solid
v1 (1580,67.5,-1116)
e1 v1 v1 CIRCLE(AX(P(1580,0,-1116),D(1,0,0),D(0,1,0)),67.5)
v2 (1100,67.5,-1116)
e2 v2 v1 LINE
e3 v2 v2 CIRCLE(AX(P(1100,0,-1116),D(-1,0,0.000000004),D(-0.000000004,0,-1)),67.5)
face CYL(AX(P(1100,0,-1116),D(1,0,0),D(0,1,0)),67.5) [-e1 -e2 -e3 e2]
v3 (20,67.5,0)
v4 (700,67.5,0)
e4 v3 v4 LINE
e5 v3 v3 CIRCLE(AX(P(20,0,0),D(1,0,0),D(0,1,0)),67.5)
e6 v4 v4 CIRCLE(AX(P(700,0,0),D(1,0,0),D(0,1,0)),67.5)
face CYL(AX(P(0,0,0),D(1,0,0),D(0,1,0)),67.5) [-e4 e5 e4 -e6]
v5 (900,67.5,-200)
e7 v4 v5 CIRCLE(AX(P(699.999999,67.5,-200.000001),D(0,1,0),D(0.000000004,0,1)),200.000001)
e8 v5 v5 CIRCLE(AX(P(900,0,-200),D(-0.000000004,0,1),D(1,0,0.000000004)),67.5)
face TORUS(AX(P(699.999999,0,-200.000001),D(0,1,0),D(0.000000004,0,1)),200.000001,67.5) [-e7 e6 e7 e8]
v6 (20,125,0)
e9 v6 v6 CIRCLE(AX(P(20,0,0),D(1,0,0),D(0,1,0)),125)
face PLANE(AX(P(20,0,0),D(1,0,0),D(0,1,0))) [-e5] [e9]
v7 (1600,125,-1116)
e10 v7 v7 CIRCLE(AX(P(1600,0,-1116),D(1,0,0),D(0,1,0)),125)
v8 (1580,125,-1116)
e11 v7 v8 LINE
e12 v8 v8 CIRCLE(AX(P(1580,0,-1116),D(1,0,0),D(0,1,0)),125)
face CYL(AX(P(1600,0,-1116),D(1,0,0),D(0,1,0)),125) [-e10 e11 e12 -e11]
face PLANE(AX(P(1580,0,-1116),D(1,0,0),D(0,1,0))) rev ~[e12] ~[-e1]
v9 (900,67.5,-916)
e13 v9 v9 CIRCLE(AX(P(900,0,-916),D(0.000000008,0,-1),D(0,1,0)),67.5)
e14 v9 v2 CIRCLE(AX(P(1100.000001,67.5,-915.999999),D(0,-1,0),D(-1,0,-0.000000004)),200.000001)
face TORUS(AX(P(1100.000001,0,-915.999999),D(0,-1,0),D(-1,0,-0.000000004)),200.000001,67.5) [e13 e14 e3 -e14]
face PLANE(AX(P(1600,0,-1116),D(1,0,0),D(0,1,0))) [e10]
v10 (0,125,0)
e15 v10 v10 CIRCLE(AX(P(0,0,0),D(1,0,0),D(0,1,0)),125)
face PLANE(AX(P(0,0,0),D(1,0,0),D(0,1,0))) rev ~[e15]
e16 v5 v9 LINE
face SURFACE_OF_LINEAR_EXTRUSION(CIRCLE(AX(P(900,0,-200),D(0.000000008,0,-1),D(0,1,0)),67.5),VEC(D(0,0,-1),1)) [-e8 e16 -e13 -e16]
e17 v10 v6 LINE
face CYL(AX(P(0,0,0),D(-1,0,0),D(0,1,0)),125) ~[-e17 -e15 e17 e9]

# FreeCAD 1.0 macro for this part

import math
import FreeCAD as App
import Part
import Sketcher
from FreeCAD import Vector
Q = App.Units.Quantity

doc = App.newDocument("Part")
params = doc.addObject("Spreadsheet::Sheet", "Params")
for row, (alias, value) in enumerate([
    ("sketch1_diameter", "135 mm"),
    ("sketch2_radius", "200.000001 mm"),
    ("sketch2_width", "700 mm"),
    ("sketch2_width2", "500 mm"),
    ("sketch2_height", "716 mm"),
    ("sketch3_diameter", "250 mm"),
    ("sketch3_diameter2", "135 mm"),
    ("pad1_length", "20 mm"),
    ("sketch4_diameter", "250 mm"),
    ("pad2_length", "20 mm"),
], start=1):
    params.set(f"A{row}", alias)
    params.set(f"B{row}", "=" + value)
    params.setAlias(f"B{row}", alias)

body = doc.addObject("PartDesign::Body", "Body")

# Sketch on YZ plane
sketch1 = body.newObject("Sketcher::SketchObject", "Sketch")
sketch1.AttachmentSupport = (doc.getObject("YZ_Plane"), [""])
sketch1.MapMode = "FlatFace"
sketch1.addGeometry(Part.Circle(Vector(0, 0, 0), Vector(0, 0, 1), 68), False)
sketch1.addConstraint(Sketcher.Constraint("Coincident", 0, 3, -1, 1))
sketch1.addConstraint(Sketcher.Constraint("Diameter", 0, Q("135 mm")))
sketch1.setExpression("Constraints[1]", "Params.sketch1_diameter")

# Sketch on XZ plane
sketch2 = body.newObject("Sketcher::SketchObject", "Sketch001")
sketch2.AttachmentSupport = (doc.getObject("XZ_Plane"), [""])
sketch2.MapMode = "FlatFace"
sketch2.addGeometry(Part.LineSegment(Vector(0, 0, 0), Vector(700, 0, 0)), False)
sketch2.addGeometry(Part.ArcOfCircle(Part.Circle(Vector(700, -200, 0), Vector(0, 0, 1), 200), math.radians(0), math.radians(90)), False)
sketch2.addGeometry(Part.LineSegment(Vector(900, -200, 0), Vector(900, -916, 0)), False)
sketch2.addGeometry(Part.ArcOfCircle(Part.Circle(Vector(1100, -916, 0), Vector(0, 0, 1), 200), math.radians(-180), math.radians(-90)), False)
sketch2.addGeometry(Part.LineSegment(Vector(1100, -1116, 0), Vector(1600, -1116, 0)), False)
sketch2.addConstraint(Sketcher.Constraint("Tangent", 0, 2, 1, 2))
sketch2.addConstraint(Sketcher.Constraint("Tangent", 1, 1, 2, 1))
sketch2.addConstraint(Sketcher.Constraint("Tangent", 2, 2, 3, 1))
sketch2.addConstraint(Sketcher.Constraint("Tangent", 3, 2, 4, 1))
sketch2.addConstraint(Sketcher.Constraint("Horizontal", 0))
sketch2.addConstraint(Sketcher.Constraint("Vertical", 2))
sketch2.addConstraint(Sketcher.Constraint("Horizontal", 4))
sketch2.addConstraint(Sketcher.Constraint("Coincident", 0, 1, -1, 1))
sketch2.addConstraint(Sketcher.Constraint("Equal", 1, 3))
sketch2.addConstraint(Sketcher.Constraint("Radius", 1, Q("200.000001 mm")))
sketch2.addConstraint(Sketcher.Constraint("DistanceX", 0, 1, 0, 2, Q("700 mm")))
sketch2.addConstraint(Sketcher.Constraint("DistanceX", 4, 1, 4, 2, Q("500 mm")))
sketch2.addConstraint(Sketcher.Constraint("DistanceY", 2, 2, 2, 1, Q("716 mm")))
sketch2.setExpression("Constraints[9]", "Params.sketch2_radius")
sketch2.setExpression("Constraints[10]", "Params.sketch2_width")
sketch2.setExpression("Constraints[11]", "Params.sketch2_width2")
sketch2.setExpression("Constraints[12]", "Params.sketch2_height")
doc.recompute()

additivepipe = body.newObject("PartDesign::AdditivePipe", "AdditivePipe")
additivepipe.Profile = sketch1
additivepipe.Spine = (sketch2, ["Edge1", "Edge2", "Edge3", "Edge4", "Edge5"])

# Sketch on YZ plane
sketch3 = body.newObject("Sketcher::SketchObject", "Sketch002")
sketch3.AttachmentSupport = (doc.getObject("YZ_Plane"), [""])
sketch3.MapMode = "FlatFace"
sketch3.addGeometry(Part.Circle(Vector(0, 0, 0), Vector(0, 0, 1), 125), False)
sketch3.addGeometry(Part.Circle(Vector(0, 0, 0), Vector(0, 0, 1), 68), False)
sketch3.addConstraint(Sketcher.Constraint("Coincident", 0, 3, -1, 1))
sketch3.addConstraint(Sketcher.Constraint("Coincident", 1, 3, -1, 1))
sketch3.addConstraint(Sketcher.Constraint("Diameter", 0, Q("250 mm")))
sketch3.addConstraint(Sketcher.Constraint("Diameter", 1, Q("135 mm")))
sketch3.setExpression("Constraints[2]", "Params.sketch3_diameter")
sketch3.setExpression("Constraints[3]", "Params.sketch3_diameter2")
pad1 = body.newObject("PartDesign::Pad", "Pad")
pad1.Profile = sketch3
pad1.setExpression("Length", "Params.pad1_length")

# Sketch on YZ plane
sketch4 = body.newObject("Sketcher::SketchObject", "Sketch003")
sketch4.AttachmentSupport = (doc.getObject("YZ_Plane"), [""])
sketch4.MapMode = "FlatFace"
sketch4.AttachmentOffset = App.Placement(Vector(0, 0, 1600), App.Rotation())
sketch4.addGeometry(Part.Circle(Vector(0, -1116, 0), Vector(0, 0, 1), 125), False)
sketch4.addConstraint(Sketcher.Constraint("PointOnObject", 0, 3, -2))
sketch4.addConstraint(Sketcher.Constraint("Diameter", 0, Q("250 mm")))
sketch4.addConstraint(Sketcher.Constraint("DistanceY", 0, 3, -1, 1, Q("1116 mm")))
sketch4.setExpression("Constraints[1]", "Params.sketch4_diameter")
pad2 = body.newObject("PartDesign::Pad", "Pad001")
pad2.Profile = sketch4
pad2.setExpression("Length", "Params.pad2_length")
pad2.Reversed = True

doc.recompute()
